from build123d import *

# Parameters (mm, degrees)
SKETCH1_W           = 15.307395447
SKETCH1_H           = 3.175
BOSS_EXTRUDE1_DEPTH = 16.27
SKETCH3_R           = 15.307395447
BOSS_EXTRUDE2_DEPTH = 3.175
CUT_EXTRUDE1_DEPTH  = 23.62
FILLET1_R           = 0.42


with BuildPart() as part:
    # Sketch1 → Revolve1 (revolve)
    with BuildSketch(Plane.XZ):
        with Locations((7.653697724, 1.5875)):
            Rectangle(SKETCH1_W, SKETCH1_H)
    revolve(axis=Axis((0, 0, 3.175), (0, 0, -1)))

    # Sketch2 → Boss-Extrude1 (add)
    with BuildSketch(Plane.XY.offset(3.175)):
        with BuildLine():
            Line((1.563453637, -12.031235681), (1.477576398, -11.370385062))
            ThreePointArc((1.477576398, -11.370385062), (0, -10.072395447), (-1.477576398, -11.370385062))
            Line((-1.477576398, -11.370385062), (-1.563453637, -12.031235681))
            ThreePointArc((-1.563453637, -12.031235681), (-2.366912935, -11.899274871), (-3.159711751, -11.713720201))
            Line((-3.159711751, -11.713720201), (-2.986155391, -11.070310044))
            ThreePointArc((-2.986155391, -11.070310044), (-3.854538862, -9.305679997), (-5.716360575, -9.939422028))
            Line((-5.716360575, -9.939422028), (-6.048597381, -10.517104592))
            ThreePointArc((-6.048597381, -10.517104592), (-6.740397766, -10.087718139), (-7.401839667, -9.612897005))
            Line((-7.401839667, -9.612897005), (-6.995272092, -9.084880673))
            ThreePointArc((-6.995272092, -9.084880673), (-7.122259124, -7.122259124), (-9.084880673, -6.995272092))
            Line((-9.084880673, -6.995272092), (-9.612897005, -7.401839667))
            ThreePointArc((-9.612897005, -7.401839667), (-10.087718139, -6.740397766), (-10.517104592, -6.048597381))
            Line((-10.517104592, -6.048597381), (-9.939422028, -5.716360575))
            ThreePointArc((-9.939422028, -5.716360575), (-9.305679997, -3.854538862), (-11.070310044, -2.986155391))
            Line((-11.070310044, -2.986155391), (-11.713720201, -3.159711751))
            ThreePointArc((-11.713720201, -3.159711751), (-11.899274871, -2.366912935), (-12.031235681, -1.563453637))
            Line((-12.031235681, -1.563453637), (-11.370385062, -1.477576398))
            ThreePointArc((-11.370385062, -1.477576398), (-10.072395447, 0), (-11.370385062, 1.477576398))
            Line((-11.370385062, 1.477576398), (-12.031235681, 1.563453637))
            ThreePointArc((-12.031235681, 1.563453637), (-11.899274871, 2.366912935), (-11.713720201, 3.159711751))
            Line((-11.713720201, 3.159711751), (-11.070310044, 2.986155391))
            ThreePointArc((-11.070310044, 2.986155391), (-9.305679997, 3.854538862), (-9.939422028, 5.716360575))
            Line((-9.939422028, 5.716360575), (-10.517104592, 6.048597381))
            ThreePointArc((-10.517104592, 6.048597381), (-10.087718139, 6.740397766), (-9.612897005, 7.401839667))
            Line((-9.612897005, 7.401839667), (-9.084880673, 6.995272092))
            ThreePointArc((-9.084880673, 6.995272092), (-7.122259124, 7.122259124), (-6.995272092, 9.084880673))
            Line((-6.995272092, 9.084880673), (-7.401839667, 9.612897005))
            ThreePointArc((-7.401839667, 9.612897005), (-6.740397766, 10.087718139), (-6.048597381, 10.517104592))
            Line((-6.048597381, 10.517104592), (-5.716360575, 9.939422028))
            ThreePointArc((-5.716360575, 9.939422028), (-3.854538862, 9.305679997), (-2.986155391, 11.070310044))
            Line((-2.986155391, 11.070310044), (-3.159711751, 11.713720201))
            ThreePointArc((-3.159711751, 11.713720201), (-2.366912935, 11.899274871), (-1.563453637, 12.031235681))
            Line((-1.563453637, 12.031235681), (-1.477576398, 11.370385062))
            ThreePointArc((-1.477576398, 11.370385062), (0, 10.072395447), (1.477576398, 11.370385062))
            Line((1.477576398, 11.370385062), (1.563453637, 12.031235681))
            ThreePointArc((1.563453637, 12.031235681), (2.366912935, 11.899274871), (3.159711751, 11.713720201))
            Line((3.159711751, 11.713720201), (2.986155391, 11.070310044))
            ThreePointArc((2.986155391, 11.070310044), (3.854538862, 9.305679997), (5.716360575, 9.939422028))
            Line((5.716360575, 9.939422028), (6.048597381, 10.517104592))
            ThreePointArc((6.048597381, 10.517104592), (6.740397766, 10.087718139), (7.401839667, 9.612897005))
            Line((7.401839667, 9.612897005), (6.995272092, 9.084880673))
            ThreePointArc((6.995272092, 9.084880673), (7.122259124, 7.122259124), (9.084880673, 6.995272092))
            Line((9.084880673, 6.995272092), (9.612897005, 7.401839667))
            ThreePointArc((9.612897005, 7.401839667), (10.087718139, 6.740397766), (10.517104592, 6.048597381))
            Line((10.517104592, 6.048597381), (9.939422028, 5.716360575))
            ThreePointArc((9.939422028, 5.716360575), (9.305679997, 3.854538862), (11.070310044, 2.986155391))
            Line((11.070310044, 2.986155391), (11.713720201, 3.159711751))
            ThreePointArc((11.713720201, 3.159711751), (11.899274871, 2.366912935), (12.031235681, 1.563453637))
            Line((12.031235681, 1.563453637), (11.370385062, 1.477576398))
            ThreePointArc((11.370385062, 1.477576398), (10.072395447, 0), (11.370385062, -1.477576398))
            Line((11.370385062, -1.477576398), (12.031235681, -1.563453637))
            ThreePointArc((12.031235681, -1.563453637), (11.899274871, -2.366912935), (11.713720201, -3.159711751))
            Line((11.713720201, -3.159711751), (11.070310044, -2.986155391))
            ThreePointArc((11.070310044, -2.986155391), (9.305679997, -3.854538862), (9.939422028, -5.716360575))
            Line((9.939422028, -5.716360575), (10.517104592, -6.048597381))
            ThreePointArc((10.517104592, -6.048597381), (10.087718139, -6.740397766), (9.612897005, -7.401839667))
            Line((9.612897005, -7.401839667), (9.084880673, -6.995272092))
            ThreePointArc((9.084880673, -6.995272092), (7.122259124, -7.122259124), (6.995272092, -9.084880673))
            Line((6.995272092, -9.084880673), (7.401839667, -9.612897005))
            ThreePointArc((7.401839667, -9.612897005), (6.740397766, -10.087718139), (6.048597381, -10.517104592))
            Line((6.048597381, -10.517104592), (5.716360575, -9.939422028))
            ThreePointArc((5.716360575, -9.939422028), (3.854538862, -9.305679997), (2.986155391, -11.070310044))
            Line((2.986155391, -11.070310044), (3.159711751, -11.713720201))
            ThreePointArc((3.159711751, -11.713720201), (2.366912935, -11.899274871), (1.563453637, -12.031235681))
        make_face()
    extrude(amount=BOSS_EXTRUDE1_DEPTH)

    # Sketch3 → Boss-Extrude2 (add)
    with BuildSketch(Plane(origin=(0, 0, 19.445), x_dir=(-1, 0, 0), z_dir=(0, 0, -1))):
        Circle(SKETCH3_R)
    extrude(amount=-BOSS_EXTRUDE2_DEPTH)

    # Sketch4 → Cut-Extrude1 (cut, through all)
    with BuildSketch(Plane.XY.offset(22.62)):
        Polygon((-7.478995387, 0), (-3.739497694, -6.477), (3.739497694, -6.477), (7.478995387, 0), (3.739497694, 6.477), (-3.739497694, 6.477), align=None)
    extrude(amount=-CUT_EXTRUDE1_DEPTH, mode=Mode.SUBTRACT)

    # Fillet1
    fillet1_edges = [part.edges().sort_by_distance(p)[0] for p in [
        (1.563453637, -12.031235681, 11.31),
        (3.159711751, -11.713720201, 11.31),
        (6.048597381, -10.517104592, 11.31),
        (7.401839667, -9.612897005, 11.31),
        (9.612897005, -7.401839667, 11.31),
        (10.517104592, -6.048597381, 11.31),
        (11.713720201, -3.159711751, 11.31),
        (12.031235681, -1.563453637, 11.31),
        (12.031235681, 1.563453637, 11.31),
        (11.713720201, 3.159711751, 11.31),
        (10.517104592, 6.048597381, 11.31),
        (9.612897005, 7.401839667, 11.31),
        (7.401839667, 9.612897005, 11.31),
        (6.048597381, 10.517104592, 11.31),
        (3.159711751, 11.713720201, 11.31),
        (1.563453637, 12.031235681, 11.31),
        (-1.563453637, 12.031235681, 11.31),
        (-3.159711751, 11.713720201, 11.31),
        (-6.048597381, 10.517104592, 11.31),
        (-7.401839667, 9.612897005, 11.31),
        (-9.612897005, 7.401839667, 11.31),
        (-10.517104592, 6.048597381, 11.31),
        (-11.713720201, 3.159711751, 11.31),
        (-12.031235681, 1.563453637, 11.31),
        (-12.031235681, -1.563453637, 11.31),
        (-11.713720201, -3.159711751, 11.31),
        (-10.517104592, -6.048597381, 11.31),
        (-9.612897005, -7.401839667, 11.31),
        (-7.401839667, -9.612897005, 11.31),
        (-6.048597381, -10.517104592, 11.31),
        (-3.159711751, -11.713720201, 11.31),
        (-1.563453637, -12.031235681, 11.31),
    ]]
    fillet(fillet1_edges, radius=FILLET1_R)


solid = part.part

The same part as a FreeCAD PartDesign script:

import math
import FreeCAD as App
import Part
import Sketcher

V = App.Vector
Q = App.Units.Quantity


def edges_at(feature, points):
    """Names of the edges that pass closest to the given points."""
    edges = feature.Shape.Edges
    near = lambda p: min(range(len(edges)), key=lambda i: edges[i].distToShape(Part.Vertex(*p))[0])
    return sorted({f"Edge{near(p) + 1}" for p in points})

doc = App.newDocument("Part")
body = doc.addObject("PartDesign::Body", "Body")

# Sketch on XZ plane
sketch1 = body.newObject("Sketcher::SketchObject", "Sketch")
sketch1.AttachmentSupport = (doc.getObject("XZ_Plane"), [""])
sketch1.MapMode = "FlatFace"
sketch1.addGeometry(Part.LineSegment(V(0, 3.175, 0), V(0, 0, 0)), False)
sketch1.addGeometry(Part.LineSegment(V(0, 0, 0), V(15.307395, 0, 0)), False)
sketch1.addGeometry(Part.LineSegment(V(15.307395, 0, 0), V(15.307395, 3.175, 0)), False)
sketch1.addGeometry(Part.LineSegment(V(15.307395, 3.175, 0), V(0, 3.175, 0)), False)
sketch1.addConstraint(Sketcher.Constraint("Coincident", 0, 2, 1, 1))
sketch1.addConstraint(Sketcher.Constraint("Coincident", 1, 2, 2, 1))
sketch1.addConstraint(Sketcher.Constraint("Coincident", 2, 2, 3, 1))
sketch1.addConstraint(Sketcher.Constraint("Coincident", 3, 2, 0, 1))
sketch1.addConstraint(Sketcher.Constraint("Vertical", 0))
sketch1.addConstraint(Sketcher.Constraint("Horizontal", 1))
sketch1.addConstraint(Sketcher.Constraint("Vertical", 2))
sketch1.addConstraint(Sketcher.Constraint("Horizontal", 3))
sketch1.addConstraint(Sketcher.Constraint("Coincident", 0, 2, -1, 1))
sketch1.addConstraint(Sketcher.Constraint("DistanceY", 0, 2, 0, 1, Q("0.125 in")))
sketch1.addConstraint(Sketcher.Constraint("DistanceX", 1, 1, 1, 2, 15.307395))
revolution = body.newObject("PartDesign::Revolution", "Revolution")
revolution.Profile = sketch1
revolution.ReferenceAxis = (sketch1, ["V_Axis"])
revolution.Angle = 360

# Sketch on XY plane
sketch2 = body.newObject("Sketcher::SketchObject", "Sketch001")
sketch2.AttachmentSupport = (doc.getObject("XY_Plane"), [""])
sketch2.MapMode = "FlatFace"
sketch2.AttachmentOffset = App.Placement(V(0, 0, 0.125 * 25.4), App.Rotation())
sketch2.addGeometry(Part.LineSegment(V(1.477576, -11.370385, 0), V(1.563454, -12.031236, 0)), False)
sketch2.addGeometry(Part.ArcOfCircle(Part.Circle(V(0, 0, 0), V(0, 0, 1), 12.132395), math.radians(-82.595931), math.radians(-74.904069)), False)
sketch2.addGeometry(Part.LineSegment(V(3.159712, -11.71372, 0), V(2.986155, -11.07031, 0)), False)
sketch2.addGeometry(Part.ArcOfCircle(Part.Circle(V(4.424737, -10.682261, 0), V(0, 0, 1), 1.49), math.radians(29.904069), math.radians(195.095931)), False)
sketch2.addGeometry(Part.LineSegment(V(5.716361, -9.939422, 0), V(6.048597, -10.517105, 0)), False)
sketch2.addGeometry(Part.ArcOfCircle(Part.Circle(V(0, 0, 0), V(0, 0, 1), 12.132395), math.radians(-60.095931), math.radians(-52.404069)), False)
sketch2.addGeometry(Part.LineSegment(V(7.40184, -9.612897, 0), V(6.995272, -9.084881, 0)), False)
sketch2.addGeometry(Part.ArcOfCircle(Part.Circle(V(8.175848, -8.175848, 0), V(0, 0, 1), 1.49), math.radians(52.404069), math.radians(217.595931)), False)
sketch2.addGeometry(Part.LineSegment(V(9.084881, -6.995272, 0), V(9.612897, -7.40184, 0)), False)
sketch2.addGeometry(Part.ArcOfCircle(Part.Circle(V(0, 0, 0), V(0, 0, 1), 12.132395), math.radians(-37.595931), math.radians(-29.904069)), False)
sketch2.addGeometry(Part.LineSegment(V(10.517105, -6.048597, 0), V(9.939422, -5.716361, 0)), False)
sketch2.addGeometry(Part.ArcOfCircle(Part.Circle(V(10.682261, -4.424737, 0), V(0, 0, 1), 1.49), math.radians(74.904069), math.radians(240.095931)), False)
sketch2.addGeometry(Part.LineSegment(V(11.07031, -2.986155, 0), V(11.71372, -3.159712, 0)), False)
sketch2.addGeometry(Part.ArcOfCircle(Part.Circle(V(0, 0, 0), V(0, 0, 1), 12.132395), math.radians(-15.095931), math.radians(-7.404069)), False)
sketch2.addGeometry(Part.LineSegment(V(12.031236, -1.563454, 0), V(11.370385, -1.477576, 0)), False)
sketch2.addGeometry(Part.ArcOfCircle(Part.Circle(V(11.562395, 0, 0), V(0, 0, 1), 1.49), math.radians(97.404069), math.radians(262.595931)), False)
sketch2.addGeometry(Part.LineSegment(V(11.370385, 1.477576, 0), V(12.031236, 1.563454, 0)), False)
sketch2.addGeometry(Part.ArcOfCircle(Part.Circle(V(0, 0, 0), V(0, 0, 1), 12.132395), math.radians(7.404069), math.radians(15.095931)), False)
sketch2.addGeometry(Part.LineSegment(V(11.71372, 3.159712, 0), V(11.07031, 2.986155, 0)), False)
sketch2.addGeometry(Part.ArcOfCircle(Part.Circle(V(10.682261, 4.424737, 0), V(0, 0, 1), 1.49), math.radians(119.904069), math.radians(285.095931)), False)
sketch2.addGeometry(Part.LineSegment(V(9.939422, 5.716361, 0), V(10.517105, 6.048597, 0)), False)
sketch2.addGeometry(Part.ArcOfCircle(Part.Circle(V(0, 0, 0), V(0, 0, 1), 12.132395), math.radians(29.904069), math.radians(37.595931)), False)
sketch2.addGeometry(Part.LineSegment(V(9.612897, 7.40184, 0), V(9.084881, 6.995272, 0)), False)
sketch2.addGeometry(Part.ArcOfCircle(Part.Circle(V(8.175848, 8.175848, 0), V(0, 0, 1), 1.49), math.radians(142.404069), math.radians(307.595931)), False)
sketch2.addGeometry(Part.LineSegment(V(6.995272, 9.084881, 0), V(7.40184, 9.612897, 0)), False)
sketch2.addGeometry(Part.ArcOfCircle(Part.Circle(V(0, 0, 0), V(0, 0, 1), 12.132395), math.radians(52.404069), math.radians(60.095931)), False)
sketch2.addGeometry(Part.LineSegment(V(6.048597, 10.517105, 0), V(5.716361, 9.939422, 0)), False)
sketch2.addGeometry(Part.ArcOfCircle(Part.Circle(V(4.424737, 10.682261, 0), V(0, 0, 1), 1.49), math.radians(164.904069), math.radians(330.095931)), False)
sketch2.addGeometry(Part.LineSegment(V(2.986155, 11.07031, 0), V(3.159712, 11.71372, 0)), False)
sketch2.addGeometry(Part.ArcOfCircle(Part.Circle(V(0, 0, 0), V(0, 0, 1), 12.132395), math.radians(74.904069), math.radians(82.595931)), False)
sketch2.addGeometry(Part.LineSegment(V(1.563454, 12.031236, 0), V(1.477576, 11.370385, 0)), False)
sketch2.addGeometry(Part.ArcOfCircle(Part.Circle(V(0, 11.562395, 0), V(0, 0, 1), 1.49), math.radians(-172.595931), math.radians(-7.404069)), False)
sketch2.addGeometry(Part.LineSegment(V(-1.477576, 11.370385, 0), V(-1.563454, 12.031236, 0)), False)
sketch2.addGeometry(Part.ArcOfCircle(Part.Circle(V(0, 0, 0), V(0, 0, 1), 12.132395), math.radians(97.404069), math.radians(105.095931)), False)
sketch2.addGeometry(Part.LineSegment(V(-3.159712, 11.71372, 0), V(-2.986155, 11.07031, 0)), False)
sketch2.addGeometry(Part.ArcOfCircle(Part.Circle(V(-4.424737, 10.682261, 0), V(0, 0, 1), 1.49), math.radians(-150.095931), math.radians(15.095931)), False)
sketch2.addGeometry(Part.LineSegment(V(-5.716361, 9.939422, 0), V(-6.048597, 10.517105, 0)), False)
sketch2.addGeometry(Part.ArcOfCircle(Part.Circle(V(0, 0, 0), V(0, 0, 1), 12.132395), math.radians(119.904069), math.radians(127.595931)), False)
sketch2.addGeometry(Part.LineSegment(V(-7.40184, 9.612897, 0), V(-6.995272, 9.084881, 0)), False)
sketch2.addGeometry(Part.ArcOfCircle(Part.Circle(V(-8.175848, 8.175848, 0), V(0, 0, 1), 1.49), math.radians(-127.595931), math.radians(37.595931)), False)
sketch2.addGeometry(Part.LineSegment(V(-9.084881, 6.995272, 0), V(-9.612897, 7.40184, 0)), False)
sketch2.addGeometry(Part.ArcOfCircle(Part.Circle(V(0, 0, 0), V(0, 0, 1), 12.132395), math.radians(142.404069), math.radians(150.095931)), False)
sketch2.addGeometry(Part.LineSegment(V(-10.517105, 6.048597, 0), V(-9.939422, 5.716361, 0)), False)
sketch2.addGeometry(Part.ArcOfCircle(Part.Circle(V(-10.682261, 4.424737, 0), V(0, 0, 1), 1.49), math.radians(-105.095931), math.radians(60.095931)), False)
sketch2.addGeometry(Part.LineSegment(V(-11.07031, 2.986155, 0), V(-11.71372, 3.159712, 0)), False)
sketch2.addGeometry(Part.ArcOfCircle(Part.Circle(V(0, 0, 0), V(0, 0, 1), 12.132395), math.radians(164.904069), math.radians(172.595931)), False)
sketch2.addGeometry(Part.LineSegment(V(-12.031236, 1.563454, 0), V(-11.370385, 1.477576, 0)), False)
sketch2.addGeometry(Part.ArcOfCircle(Part.Circle(V(-11.562395, 0, 0), V(0, 0, 1), 1.49), math.radians(-82.595931), math.radians(82.595931)), False)
sketch2.addGeometry(Part.LineSegment(V(-11.370385, -1.477576, 0), V(-12.031236, -1.563454, 0)), False)
sketch2.addGeometry(Part.ArcOfCircle(Part.Circle(V(0, 0, 0), V(0, 0, 1), 12.132395), math.radians(-172.595931), math.radians(-164.904069)), False)
sketch2.addGeometry(Part.LineSegment(V(-11.71372, -3.159712, 0), V(-11.07031, -2.986155, 0)), False)
sketch2.addGeometry(Part.ArcOfCircle(Part.Circle(V(-10.682261, -4.424737, 0), V(0, 0, 1), 1.49), math.radians(-60.095931), math.radians(105.095931)), False)
sketch2.addGeometry(Part.LineSegment(V(-9.939422, -5.716361, 0), V(-10.517105, -6.048597, 0)), False)
sketch2.addGeometry(Part.ArcOfCircle(Part.Circle(V(0, 0, 0), V(0, 0, 1), 12.132395), math.radians(-150.095931), math.radians(-142.404069)), False)
sketch2.addGeometry(Part.LineSegment(V(-9.612897, -7.40184, 0), V(-9.084881, -6.995272, 0)), False)
sketch2.addGeometry(Part.ArcOfCircle(Part.Circle(V(-8.175848, -8.175848, 0), V(0, 0, 1), 1.49), math.radians(-37.595931), math.radians(127.595931)), False)
sketch2.addGeometry(Part.LineSegment(V(-6.995272, -9.084881, 0), V(-7.40184, -9.612897, 0)), False)
sketch2.addGeometry(Part.ArcOfCircle(Part.Circle(V(0, 0, 0), V(0, 0, 1), 12.132395), math.radians(-127.595931), math.radians(-119.904069)), False)
sketch2.addGeometry(Part.LineSegment(V(-6.048597, -10.517105, 0), V(-5.716361, -9.939422, 0)), False)
sketch2.addGeometry(Part.ArcOfCircle(Part.Circle(V(-4.424737, -10.682261, 0), V(0, 0, 1), 1.49), math.radians(-15.095931), math.radians(150.095931)), False)
sketch2.addGeometry(Part.LineSegment(V(-2.986155, -11.07031, 0), V(-3.159712, -11.71372, 0)), False)
sketch2.addGeometry(Part.ArcOfCircle(Part.Circle(V(0, 0, 0), V(0, 0, 1), 12.132395), math.radians(-105.095931), math.radians(-97.404069)), False)
sketch2.addGeometry(Part.LineSegment(V(-1.563454, -12.031236, 0), V(-1.477576, -11.370385, 0)), False)
sketch2.addGeometry(Part.ArcOfCircle(Part.Circle(V(0, -11.562395, 0), V(0, 0, 1), 1.49), math.radians(7.404069), math.radians(172.595931)), False)
sketch2.addConstraint(Sketcher.Constraint("Coincident", 0, 2, 1, 1))
sketch2.addConstraint(Sketcher.Constraint("Coincident", 1, 2, 2, 1))
sketch2.addConstraint(Sketcher.Constraint("Tangent", 2, 2, 3, 2))
sketch2.addConstraint(Sketcher.Constraint("Tangent", 3, 1, 4, 1))
sketch2.addConstraint(Sketcher.Constraint("Coincident", 4, 2, 5, 1))
sketch2.addConstraint(Sketcher.Constraint("Coincident", 5, 2, 6, 1))
sketch2.addConstraint(Sketcher.Constraint("Tangent", 6, 2, 7, 2))
sketch2.addConstraint(Sketcher.Constraint("Tangent", 7, 1, 8, 1))
sketch2.addConstraint(Sketcher.Constraint("Coincident", 8, 2, 9, 1))
sketch2.addConstraint(Sketcher.Constraint("Coincident", 9, 2, 10, 1))
sketch2.addConstraint(Sketcher.Constraint("Tangent", 10, 2, 11, 2))
sketch2.addConstraint(Sketcher.Constraint("Tangent", 11, 1, 12, 1))
sketch2.addConstraint(Sketcher.Constraint("Coincident", 12, 2, 13, 1))
sketch2.addConstraint(Sketcher.Constraint("Coincident", 13, 2, 14, 1))
sketch2.addConstraint(Sketcher.Constraint("Tangent", 14, 2, 15, 2))
sketch2.addConstraint(Sketcher.Constraint("Tangent", 15, 1, 16, 1))
sketch2.addConstraint(Sketcher.Constraint("Coincident", 16, 2, 17, 1))
sketch2.addConstraint(Sketcher.Constraint("Coincident", 17, 2, 18, 1))
sketch2.addConstraint(Sketcher.Constraint("Tangent", 18, 2, 19, 2))
sketch2.addConstraint(Sketcher.Constraint("Tangent", 19, 1, 20, 1))
sketch2.addConstraint(Sketcher.Constraint("Coincident", 20, 2, 21, 1))
sketch2.addConstraint(Sketcher.Constraint("Coincident", 21, 2, 22, 1))
sketch2.addConstraint(Sketcher.Constraint("Tangent", 22, 2, 23, 2))
sketch2.addConstraint(Sketcher.Constraint("Tangent", 23, 1, 24, 1))
sketch2.addConstraint(Sketcher.Constraint("Coincident", 24, 2, 25, 1))
sketch2.addConstraint(Sketcher.Constraint("Coincident", 25, 2, 26, 1))
sketch2.addConstraint(Sketcher.Constraint("Tangent", 26, 2, 27, 2))
sketch2.addConstraint(Sketcher.Constraint("Tangent", 27, 1, 28, 1))
sketch2.addConstraint(Sketcher.Constraint("Coincident", 28, 2, 29, 1))
sketch2.addConstraint(Sketcher.Constraint("Coincident", 29, 2, 30, 1))
sketch2.addConstraint(Sketcher.Constraint("Tangent", 30, 2, 31, 2))
sketch2.addConstraint(Sketcher.Constraint("Tangent", 31, 1, 32, 1))
sketch2.addConstraint(Sketcher.Constraint("Coincident", 32, 2, 33, 1))
sketch2.addConstraint(Sketcher.Constraint("Coincident", 33, 2, 34, 1))
sketch2.addConstraint(Sketcher.Constraint("Tangent", 34, 2, 35, 2))
sketch2.addConstraint(Sketcher.Constraint("Tangent", 35, 1, 36, 1))
sketch2.addConstraint(Sketcher.Constraint("Coincident", 36, 2, 37, 1))
sketch2.addConstraint(Sketcher.Constraint("Coincident", 37, 2, 38, 1))
sketch2.addConstraint(Sketcher.Constraint("Tangent", 38, 2, 39, 2))
sketch2.addConstraint(Sketcher.Constraint("Tangent", 39, 1, 40, 1))
sketch2.addConstraint(Sketcher.Constraint("Coincident", 40, 2, 41, 1))
sketch2.addConstraint(Sketcher.Constraint("Coincident", 41, 2, 42, 1))
sketch2.addConstraint(Sketcher.Constraint("Tangent", 42, 2, 43, 2))
sketch2.addConstraint(Sketcher.Constraint("Tangent", 43, 1, 44, 1))
sketch2.addConstraint(Sketcher.Constraint("Coincident", 44, 2, 45, 1))
sketch2.addConstraint(Sketcher.Constraint("Coincident", 45, 2, 46, 1))
sketch2.addConstraint(Sketcher.Constraint("Tangent", 46, 2, 47, 2))
sketch2.addConstraint(Sketcher.Constraint("Tangent", 47, 1, 48, 1))
sketch2.addConstraint(Sketcher.Constraint("Coincident", 48, 2, 49, 1))
sketch2.addConstraint(Sketcher.Constraint("Coincident", 49, 2, 50, 1))
sketch2.addConstraint(Sketcher.Constraint("Tangent", 50, 2, 51, 2))
sketch2.addConstraint(Sketcher.Constraint("Tangent", 51, 1, 52, 1))
sketch2.addConstraint(Sketcher.Constraint("Coincident", 52, 2, 53, 1))
sketch2.addConstraint(Sketcher.Constraint("Coincident", 53, 2, 54, 1))
sketch2.addConstraint(Sketcher.Constraint("Tangent", 54, 2, 55, 2))
sketch2.addConstraint(Sketcher.Constraint("Tangent", 55, 1, 56, 1))
sketch2.addConstraint(Sketcher.Constraint("Coincident", 56, 2, 57, 1))
sketch2.addConstraint(Sketcher.Constraint("Coincident", 57, 2, 58, 1))
sketch2.addConstraint(Sketcher.Constraint("Tangent", 58, 2, 59, 2))
sketch2.addConstraint(Sketcher.Constraint("Tangent", 59, 1, 60, 1))
sketch2.addConstraint(Sketcher.Constraint("Coincident", 60, 2, 61, 1))
sketch2.addConstraint(Sketcher.Constraint("Coincident", 61, 2, 62, 1))
sketch2.addConstraint(Sketcher.Constraint("Tangent", 62, 2, 63, 2))
sketch2.addConstraint(Sketcher.Constraint("Tangent", 63, 1, 0, 1))
sketch2.addConstraint(Sketcher.Constraint("Coincident", 1, 3, -1, 1))
sketch2.addConstraint(Sketcher.Constraint("Coincident", 5, 3, -1, 1))
sketch2.addConstraint(Sketcher.Constraint("Coincident", 9, 3, -1, 1))
sketch2.addConstraint(Sketcher.Constraint("Coincident", 13, 3, -1, 1))
sketch2.addConstraint(Sketcher.Constraint("Coincident", 17, 3, -1, 1))
sketch2.addConstraint(Sketcher.Constraint("Coincident", 21, 3, -1, 1))
sketch2.addConstraint(Sketcher.Constraint("Coincident", 25, 3, -1, 1))
sketch2.addConstraint(Sketcher.Constraint("Coincident", 29, 3, -1, 1))
sketch2.addConstraint(Sketcher.Constraint("Coincident", 33, 3, -1, 1))
sketch2.addConstraint(Sketcher.Constraint("Coincident", 37, 3, -1, 1))
sketch2.addConstraint(Sketcher.Constraint("Coincident", 41, 3, -1, 1))
sketch2.addConstraint(Sketcher.Constraint("Coincident", 45, 3, -1, 1))
sketch2.addConstraint(Sketcher.Constraint("Coincident", 49, 3, -1, 1))
sketch2.addConstraint(Sketcher.Constraint("Coincident", 53, 3, -1, 1))
sketch2.addConstraint(Sketcher.Constraint("Coincident", 57, 3, -1, 1))
sketch2.addConstraint(Sketcher.Constraint("Coincident", 61, 3, -1, 1))
sketch2.addConstraint(Sketcher.Constraint("Equal", 1, 5))
sketch2.addConstraint(Sketcher.Constraint("Equal", 3, 7))
sketch2.addConstraint(Sketcher.Constraint("Equal", 5, 9))
sketch2.addConstraint(Sketcher.Constraint("Equal", 7, 11))
sketch2.addConstraint(Sketcher.Constraint("Equal", 9, 13))
sketch2.addConstraint(Sketcher.Constraint("Equal", 11, 15))
sketch2.addConstraint(Sketcher.Constraint("Equal", 13, 17))
sketch2.addConstraint(Sketcher.Constraint("Equal", 15, 19))
sketch2.addConstraint(Sketcher.Constraint("Equal", 17, 21))
sketch2.addConstraint(Sketcher.Constraint("Equal", 19, 23))
sketch2.addConstraint(Sketcher.Constraint("Equal", 21, 25))
sketch2.addConstraint(Sketcher.Constraint("Equal", 23, 27))
sketch2.addConstraint(Sketcher.Constraint("Equal", 25, 29))
sketch2.addConstraint(Sketcher.Constraint("Equal", 27, 31))
sketch2.addConstraint(Sketcher.Constraint("Equal", 29, 33))
sketch2.addConstraint(Sketcher.Constraint("Equal", 31, 35))
sketch2.addConstraint(Sketcher.Constraint("Equal", 33, 37))
sketch2.addConstraint(Sketcher.Constraint("Equal", 35, 39))
sketch2.addConstraint(Sketcher.Constraint("Equal", 37, 41))
sketch2.addConstraint(Sketcher.Constraint("Equal", 39, 43))
sketch2.addConstraint(Sketcher.Constraint("Equal", 41, 45))
sketch2.addConstraint(Sketcher.Constraint("Equal", 43, 47))
sketch2.addConstraint(Sketcher.Constraint("Equal", 45, 49))
sketch2.addConstraint(Sketcher.Constraint("Equal", 47, 51))
sketch2.addConstraint(Sketcher.Constraint("Equal", 49, 53))
sketch2.addConstraint(Sketcher.Constraint("Equal", 51, 55))
sketch2.addConstraint(Sketcher.Constraint("Equal", 53, 57))
sketch2.addConstraint(Sketcher.Constraint("Equal", 55, 59))
sketch2.addConstraint(Sketcher.Constraint("Equal", 57, 61))
sketch2.addConstraint(Sketcher.Constraint("Equal", 59, 63))
sketch2.addConstraint(Sketcher.Constraint("Symmetric", 3, 3, 35, 3, -1, 1))
sketch2.addConstraint(Sketcher.Constraint("Symmetric", 7, 3, 39, 3, -1, 1))
sketch2.addConstraint(Sketcher.Constraint("Symmetric", 11, 3, 43, 3, -1, 1))
sketch2.addConstraint(Sketcher.Constraint("Symmetric", 15, 3, 47, 3, -1, 1))
sketch2.addConstraint(Sketcher.Constraint("Symmetric", 19, 3, 51, 3, -1, 1))
sketch2.addConstraint(Sketcher.Constraint("Symmetric", 23, 3, 55, 3, -1, 1))
sketch2.addConstraint(Sketcher.Constraint("Symmetric", 27, 3, 59, 3, -1, 1))
sketch2.addConstraint(Sketcher.Constraint("Symmetric", 31, 3, 63, 3, -1, 1))
sketch2.addConstraint(Sketcher.Constraint("Symmetric", 27, 3, 35, 3, -2))
sketch2.addConstraint(Sketcher.Constraint("Symmetric", 23, 3, 39, 3, -2))
sketch2.addConstraint(Sketcher.Constraint("Symmetric", 19, 3, 43, 3, -2))
sketch2.addConstraint(Sketcher.Constraint("Symmetric", 30, 2, 31, 1, -2))
sketch2.addConstraint(Sketcher.Constraint("Symmetric", 15, 1, 46, 2, -2))
sketch2.addConstraint(Sketcher.Constraint("Perpendicular", 0, 16))
sketch2.addConstraint(Sketcher.Constraint("Perpendicular", 2, 18))
sketch2.addConstraint(Sketcher.Constraint("Perpendicular", 4, 20))
sketch2.addConstraint(Sketcher.Constraint("Perpendicular", 6, 22))
sketch2.addConstraint(Sketcher.Constraint("Perpendicular", 8, 24))
sketch2.addConstraint(Sketcher.Constraint("Perpendicular", 10, 26))
sketch2.addConstraint(Sketcher.Constraint("Perpendicular", 12, 28))
sketch2.addConstraint(Sketcher.Constraint("Perpendicular", 14, 30))
sketch2.addConstraint(Sketcher.Constraint("Perpendicular", 16, 32))
sketch2.addConstraint(Sketcher.Constraint("Perpendicular", 18, 34))
sketch2.addConstraint(Sketcher.Constraint("Perpendicular", 20, 36))
sketch2.addConstraint(Sketcher.Constraint("Perpendicular", 22, 38))
sketch2.addConstraint(Sketcher.Constraint("Perpendicular", 24, 40))
sketch2.addConstraint(Sketcher.Constraint("Perpendicular", 26, 42))
sketch2.addConstraint(Sketcher.Constraint("Perpendicular", 28, 44))
sketch2.addConstraint(Sketcher.Constraint("Perpendicular", 32, 48))
sketch2.addConstraint(Sketcher.Constraint("Perpendicular", 34, 50))
sketch2.addConstraint(Sketcher.Constraint("Perpendicular", 36, 52))
sketch2.addConstraint(Sketcher.Constraint("Perpendicular", 38, 54))
sketch2.addConstraint(Sketcher.Constraint("Perpendicular", 40, 56))
sketch2.addConstraint(Sketcher.Constraint("Perpendicular", 42, 58))
sketch2.addConstraint(Sketcher.Constraint("Perpendicular", 44, 60))
sketch2.addConstraint(Sketcher.Constraint("Perpendicular", 46, 62))
sketch2.addConstraint(Sketcher.Constraint("Horizontal", 28, 2, 33, 2))
sketch2.addConstraint(Sketcher.Constraint("Horizontal", 26, 2, 35, 1))
sketch2.addConstraint(Sketcher.Constraint("Horizontal", 24, 2, 37, 2))
sketch2.addConstraint(Sketcher.Constraint("Equal", 0, 2))
sketch2.addConstraint(Sketcher.Constraint("Equal", 2, 4))
sketch2.addConstraint(Sketcher.Constraint("Equal", 4, 6))
sketch2.addConstraint(Sketcher.Constraint("Equal", 6, 8))
sketch2.addConstraint(Sketcher.Constraint("Equal", 8, 10))
sketch2.addConstraint(Sketcher.Constraint("Equal", 10, 12))
sketch2.addConstraint(Sketcher.Constraint("Equal", 12, 14))
sketch2.addConstraint(Sketcher.Constraint("Radius", 3, 1.49))
sketch2.addConstraint(Sketcher.Constraint("Radius", 1, 12.132395))
sketch2.addConstraint(Sketcher.Constraint("DistanceY", 3, 3, -1, 1, 10.682261))
sketch2.addConstraint(Sketcher.Constraint("DistanceX", -1, 1, 7, 3, 8.175848))
sketch2.addConstraint(Sketcher.Constraint("DistanceX", -1, 1, 1, 2, 3.159712))
sketch2.addConstraint(Sketcher.Constraint("DistanceY", 2, 2, -1, 1, 11.07031))
sketch2.addConstraint(Sketcher.Constraint("DistanceX", -1, 1, 15, 3, 11.562395))
pad1 = body.newObject("PartDesign::Pad", "Pad")
pad1.Profile = sketch2
pad1.Length = 16.27

# Sketch on XY plane
sketch3 = body.newObject("Sketcher::SketchObject", "Sketch002")
sketch3.AttachmentSupport = (doc.getObject("XY_Plane"), [""])
sketch3.MapMode = "FlatFace"
sketch3.AttachmentOffset = App.Placement(V(0, 0, 19.445), App.Rotation())
sketch3.addGeometry(Part.Circle(V(0, 0, 0), V(0, 0, 1), 15.307395), False)
sketch3.addConstraint(Sketcher.Constraint("Coincident", 0, 3, -1, 1))
sketch3.addConstraint(Sketcher.Constraint("Diameter", 0, 30.614791))
pad2 = body.newObject("PartDesign::Pad", "Pad001")
pad2.Profile = sketch3
pad2.Length = Q("0.125 in")

# Sketch on XY plane
sketch4 = body.newObject("Sketcher::SketchObject", "Sketch003")
sketch4.AttachmentSupport = (doc.getObject("XY_Plane"), [""])
sketch4.MapMode = "FlatFace"
sketch4.AttachmentOffset = App.Placement(V(0, 0, 22.62), App.Rotation())
sketch4.addGeometry(Part.LineSegment(V(-7.478995, 0, 0), V(-3.739498, -6.477, 0)), False)
sketch4.addGeometry(Part.LineSegment(V(-3.739498, -6.477, 0), V(3.739498, -6.477, 0)), False)
sketch4.addGeometry(Part.LineSegment(V(3.739498, -6.477, 0), V(7.478995, 0, 0)), False)
sketch4.addGeometry(Part.LineSegment(V(7.478995, 0, 0), V(3.739498, 6.477, 0)), False)
sketch4.addGeometry(Part.LineSegment(V(3.739498, 6.477, 0), V(-3.739498, 6.477, 0)), False)
sketch4.addGeometry(Part.LineSegment(V(-3.739498, 6.477, 0), V(-7.478995, 0, 0)), False)
sketch4.addConstraint(Sketcher.Constraint("Coincident", 0, 2, 1, 1))
sketch4.addConstraint(Sketcher.Constraint("Coincident", 1, 2, 2, 1))
sketch4.addConstraint(Sketcher.Constraint("Coincident", 2, 2, 3, 1))
sketch4.addConstraint(Sketcher.Constraint("Coincident", 3, 2, 4, 1))
sketch4.addConstraint(Sketcher.Constraint("Coincident", 4, 2, 5, 1))
sketch4.addConstraint(Sketcher.Constraint("Coincident", 5, 2, 0, 1))
sketch4.addConstraint(Sketcher.Constraint("Horizontal", 1))
sketch4.addConstraint(Sketcher.Constraint("Horizontal", 4))
sketch4.addConstraint(Sketcher.Constraint("Symmetric", 0, 2, 3, 2, -1, 1))
sketch4.addConstraint(Sketcher.Constraint("Symmetric", 2, 2, 5, 2, -1, 1))
sketch4.addConstraint(Sketcher.Constraint("PointOnObject", 2, 2, -1))
sketch4.addConstraint(Sketcher.Constraint("Parallel", 2, 5))
sketch4.addConstraint(Sketcher.Constraint("Vertical", 1, 2, 3, 2))
sketch4.addConstraint(Sketcher.Constraint("Angle", 0, Q("-60 deg")))
sketch4.addConstraint(Sketcher.Constraint("DistanceY", 1, 2, 3, 2, Q("0.51 in")))
sketch4.addConstraint(Sketcher.Constraint("DistanceX", 1, 1, 1, 2, 7.478995))
pocket1 = body.newObject("PartDesign::Pocket", "Pocket")
pocket1.Profile = sketch4
pocket1.Type = "ThroughAll"
doc.recompute()

fillet = body.newObject("PartDesign::Fillet", "Fillet")
fillet.Base = (pocket1, edges_at(pocket1, [
    (1.563, -12.031, 11.31),
    (3.16, -11.714, 11.31),
    (6.049, -10.517, 11.31),
    (7.402, -9.613, 11.31),
    (9.613, -7.402, 11.31),
    (10.517, -6.049, 11.31),
    (11.714, -3.16, 11.31),
    (12.031, -1.563, 11.31),
    (12.031, 1.563, 11.31),
    (11.714, 3.16, 11.31),
    (10.517, 6.049, 11.31),
    (9.613, 7.402, 11.31),
    (7.402, 9.613, 11.31),
    (6.049, 10.517, 11.31),
    (3.16, 11.714, 11.31),
    (1.563, 12.031, 11.31),
    (-1.563, 12.031, 11.31),
    (-3.16, 11.714, 11.31),
    (-6.049, 10.517, 11.31),
    (-7.402, 9.613, 11.31),
    (-9.613, 7.402, 11.31),
    (-10.517, 6.049, 11.31),
    (-11.714, 3.16, 11.31),
    (-12.031, 1.563, 11.31),
    (-12.031, -1.563, 11.31),
    (-11.714, -3.16, 11.31),
    (-10.517, -6.049, 11.31),
    (-9.613, -7.402, 11.31),
    (-7.402, -9.613, 11.31),
    (-6.049, -10.517, 11.31),
    (-3.16, -11.714, 11.31),
    (-1.563, -12.031, 11.31),
]))
fillet.Radius = 0.42

doc.recompute()
